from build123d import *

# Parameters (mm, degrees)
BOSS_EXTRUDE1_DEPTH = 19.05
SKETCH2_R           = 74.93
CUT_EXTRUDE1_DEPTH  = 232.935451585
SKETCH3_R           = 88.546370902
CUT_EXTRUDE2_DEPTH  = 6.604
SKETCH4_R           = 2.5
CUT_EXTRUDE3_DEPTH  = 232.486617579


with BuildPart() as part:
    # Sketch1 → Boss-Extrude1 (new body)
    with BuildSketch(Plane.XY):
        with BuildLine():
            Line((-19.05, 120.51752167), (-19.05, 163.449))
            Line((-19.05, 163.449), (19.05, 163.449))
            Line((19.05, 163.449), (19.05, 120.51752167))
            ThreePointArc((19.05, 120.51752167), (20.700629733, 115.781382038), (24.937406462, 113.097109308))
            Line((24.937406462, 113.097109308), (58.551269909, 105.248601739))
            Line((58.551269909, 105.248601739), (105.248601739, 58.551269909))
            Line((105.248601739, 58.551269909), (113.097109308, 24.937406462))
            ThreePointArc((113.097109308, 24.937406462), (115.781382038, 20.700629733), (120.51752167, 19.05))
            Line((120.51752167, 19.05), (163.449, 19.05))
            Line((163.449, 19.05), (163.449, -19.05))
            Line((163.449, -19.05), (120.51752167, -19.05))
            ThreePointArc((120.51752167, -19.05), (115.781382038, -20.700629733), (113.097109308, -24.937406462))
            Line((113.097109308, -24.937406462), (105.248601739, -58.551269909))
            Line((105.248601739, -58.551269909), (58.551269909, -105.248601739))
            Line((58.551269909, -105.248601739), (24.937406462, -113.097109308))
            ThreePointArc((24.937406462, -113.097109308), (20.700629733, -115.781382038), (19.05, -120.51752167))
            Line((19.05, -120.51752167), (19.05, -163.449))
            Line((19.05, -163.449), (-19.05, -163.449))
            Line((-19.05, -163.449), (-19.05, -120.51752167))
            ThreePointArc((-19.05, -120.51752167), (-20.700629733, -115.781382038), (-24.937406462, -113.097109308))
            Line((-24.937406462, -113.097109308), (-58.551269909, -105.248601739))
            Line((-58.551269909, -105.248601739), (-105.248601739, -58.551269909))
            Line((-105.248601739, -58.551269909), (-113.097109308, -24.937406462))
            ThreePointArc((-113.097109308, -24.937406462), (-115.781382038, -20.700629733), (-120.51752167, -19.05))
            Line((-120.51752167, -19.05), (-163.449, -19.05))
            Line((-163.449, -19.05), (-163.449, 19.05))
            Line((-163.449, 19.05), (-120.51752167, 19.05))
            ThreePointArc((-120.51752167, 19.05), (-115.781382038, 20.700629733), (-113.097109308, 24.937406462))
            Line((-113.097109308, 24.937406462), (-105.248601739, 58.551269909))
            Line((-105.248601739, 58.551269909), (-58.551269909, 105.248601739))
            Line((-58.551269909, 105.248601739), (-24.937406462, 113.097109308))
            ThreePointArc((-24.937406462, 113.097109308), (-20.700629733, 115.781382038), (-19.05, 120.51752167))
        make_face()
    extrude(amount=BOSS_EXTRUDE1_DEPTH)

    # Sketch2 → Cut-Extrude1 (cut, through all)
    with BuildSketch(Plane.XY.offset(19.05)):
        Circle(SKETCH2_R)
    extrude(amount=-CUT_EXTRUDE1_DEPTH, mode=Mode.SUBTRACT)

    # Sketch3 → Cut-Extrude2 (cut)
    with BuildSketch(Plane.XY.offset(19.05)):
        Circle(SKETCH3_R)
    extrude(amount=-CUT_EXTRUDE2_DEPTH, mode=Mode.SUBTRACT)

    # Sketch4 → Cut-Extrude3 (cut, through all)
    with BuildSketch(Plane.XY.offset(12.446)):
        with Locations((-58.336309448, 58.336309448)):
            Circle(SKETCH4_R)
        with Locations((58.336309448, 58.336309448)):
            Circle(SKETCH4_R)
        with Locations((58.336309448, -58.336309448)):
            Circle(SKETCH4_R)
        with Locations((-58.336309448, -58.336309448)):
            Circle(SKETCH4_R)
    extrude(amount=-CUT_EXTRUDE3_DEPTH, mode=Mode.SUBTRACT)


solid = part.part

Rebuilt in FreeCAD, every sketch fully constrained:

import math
import FreeCAD as App
import Part
import Sketcher
from FreeCAD import Vector
Q = App.Units.Quantity

doc = App.newDocument("Part")
body = doc.addObject("PartDesign::Body", "Body")

sketch1 = body.newObject("Sketcher::SketchObject", "Sketch")
sketch1.AttachmentSupport = (doc.getObject("XY_Plane"), [""])
sketch1.MapMode = "FlatFace"
sketch1.addGeometry([
    Part.LineSegment(Vector(-19.05, 163.449, 0), Vector(-19.05, 120.517522, 0)),
    Part.ArcOfCircle(Part.Circle(Vector(-26.67, 120.517522, 0), Vector(0, 0, 1), 7.62), math.radians(-76.857454), math.radians(0)),
    Part.LineSegment(Vector(-24.937406, 113.097109, 0), Vector(-58.55127, 105.248602, 0)),
    Part.LineSegment(Vector(-58.55127, 105.248602, 0), Vector(-105.248602, 58.55127, 0)),
    Part.LineSegment(Vector(-105.248602, 58.55127, 0), Vector(-113.097109, 24.937406, 0)),
    Part.ArcOfCircle(Part.Circle(Vector(-120.517522, 26.67, 0), Vector(0, 0, 1), 7.62), math.radians(-90), math.radians(-13.142546)),
    Part.LineSegment(Vector(-120.517522, 19.05, 0), Vector(-163.449, 19.05, 0)),
    Part.LineSegment(Vector(-163.449, 19.05, 0), Vector(-163.449, -19.05, 0)),
    Part.LineSegment(Vector(-163.449, -19.05, 0), Vector(-120.517522, -19.05, 0)),
    Part.ArcOfCircle(Part.Circle(Vector(-120.517522, -26.67, 0), Vector(0, 0, 1), 7.62), math.radians(13.142546), math.radians(90)),
    Part.LineSegment(Vector(-113.097109, -24.937406, 0), Vector(-105.248602, -58.55127, 0)),
    Part.LineSegment(Vector(-105.248602, -58.55127, 0), Vector(-58.55127, -105.248602, 0)),
    Part.LineSegment(Vector(-58.55127, -105.248602, 0), Vector(-24.937406, -113.097109, 0)),
    Part.ArcOfCircle(Part.Circle(Vector(-26.67, -120.517522, 0), Vector(0, 0, 1), 7.62), math.radians(0), math.radians(76.857454)),
    Part.LineSegment(Vector(-19.05, -120.517522, 0), Vector(-19.05, -163.449, 0)),
    Part.LineSegment(Vector(-19.05, -163.449, 0), Vector(19.05, -163.449, 0)),
    Part.LineSegment(Vector(19.05, -163.449, 0), Vector(19.05, -120.517522, 0)),
    Part.ArcOfCircle(Part.Circle(Vector(26.67, -120.517522, 0), Vector(0, 0, 1), 7.62), math.radians(103.142546), math.radians(180)),
    Part.LineSegment(Vector(24.937406, -113.097109, 0), Vector(58.55127, -105.248602, 0)),
    Part.LineSegment(Vector(58.55127, -105.248602, 0), Vector(105.248602, -58.55127, 0)),
    Part.LineSegment(Vector(105.248602, -58.55127, 0), Vector(113.097109, -24.937406, 0)),
    Part.ArcOfCircle(Part.Circle(Vector(120.517522, -26.67, 0), Vector(0, 0, 1), 7.62), math.radians(90), math.radians(166.857454)),
    Part.LineSegment(Vector(120.517522, -19.05, 0), Vector(163.449, -19.05, 0)),
    Part.LineSegment(Vector(163.449, -19.05, 0), Vector(163.449, 19.05, 0)),
    Part.LineSegment(Vector(163.449, 19.05, 0), Vector(120.517522, 19.05, 0)),
    Part.ArcOfCircle(Part.Circle(Vector(120.517522, 26.67, 0), Vector(0, 0, 1), 7.62), math.radians(-166.857454), math.radians(-90)),
    Part.LineSegment(Vector(113.097109, 24.937406, 0), Vector(105.248602, 58.55127, 0)),
    Part.LineSegment(Vector(105.248602, 58.55127, 0), Vector(58.55127, 105.248602, 0)),
    Part.LineSegment(Vector(58.55127, 105.248602, 0), Vector(24.937406, 113.097109, 0)),
    Part.ArcOfCircle(Part.Circle(Vector(26.67, 120.517522, 0), Vector(0, 0, 1), 7.62), math.radians(180), math.radians(256.857454)),
    Part.LineSegment(Vector(19.05, 120.517522, 0), Vector(19.05, 163.449, 0)),
    Part.LineSegment(Vector(19.05, 163.449, 0), Vector(-19.05, 163.449, 0)),
], False)
sketch1.addConstraint([
    Sketcher.Constraint("Tangent", 0, 2, 1, 2),
    Sketcher.Constraint("Tangent", 1, 1, 2, 1),
    Sketcher.Constraint("Coincident", 2, 2, 3, 1),
    Sketcher.Constraint("Coincident", 3, 2, 4, 1),
    Sketcher.Constraint("Tangent", 4, 2, 5, 2),
    Sketcher.Constraint("Tangent", 5, 1, 6, 1),
    Sketcher.Constraint("Coincident", 6, 2, 7, 1),
    Sketcher.Constraint("Coincident", 7, 2, 8, 1),
    Sketcher.Constraint("Tangent", 8, 2, 9, 2),
    Sketcher.Constraint("Tangent", 9, 1, 10, 1),
    Sketcher.Constraint("Coincident", 10, 2, 11, 1),
    Sketcher.Constraint("Coincident", 11, 2, 12, 1),
    Sketcher.Constraint("Tangent", 12, 2, 13, 2),
    Sketcher.Constraint("Tangent", 13, 1, 14, 1),
    Sketcher.Constraint("Coincident", 14, 2, 15, 1),
    Sketcher.Constraint("Coincident", 15, 2, 16, 1),
    Sketcher.Constraint("Tangent", 16, 2, 17, 2),
    Sketcher.Constraint("Tangent", 17, 1, 18, 1),
    Sketcher.Constraint("Coincident", 18, 2, 19, 1),
    Sketcher.Constraint("Coincident", 19, 2, 20, 1),
    Sketcher.Constraint("Tangent", 20, 2, 21, 2),
    Sketcher.Constraint("Tangent", 21, 1, 22, 1),
    Sketcher.Constraint("Coincident", 22, 2, 23, 1),
    Sketcher.Constraint("Coincident", 23, 2, 24, 1),
    Sketcher.Constraint("Tangent", 24, 2, 25, 2),
    Sketcher.Constraint("Tangent", 25, 1, 26, 1),
    Sketcher.Constraint("Coincident", 26, 2, 27, 1),
    Sketcher.Constraint("Coincident", 27, 2, 28, 1),
    Sketcher.Constraint("Tangent", 28, 2, 29, 2),
    Sketcher.Constraint("Tangent", 29, 1, 30, 1),
    Sketcher.Constraint("Coincident", 30, 2, 31, 1),
    Sketcher.Constraint("Coincident", 31, 2, 0, 1),
    Sketcher.Constraint("Vertical", 0),
    Sketcher.Constraint("Horizontal", 6),
    Sketcher.Constraint("Vertical", 7),
    Sketcher.Constraint("Horizontal", 8),
    Sketcher.Constraint("Vertical", 14),
    Sketcher.Constraint("Horizontal", 15),
    Sketcher.Constraint("Vertical", 16),
    Sketcher.Constraint("Horizontal", 22),
    Sketcher.Constraint("Vertical", 23),
    Sketcher.Constraint("Horizontal", 24),
    Sketcher.Constraint("Vertical", 30),
    Sketcher.Constraint("Horizontal", 31),
    Sketcher.Constraint("Equal", 1, 5),
    Sketcher.Constraint("Equal", 5, 9),
    Sketcher.Constraint("Equal", 9, 13),
    Sketcher.Constraint("Equal", 13, 17),
    Sketcher.Constraint("Equal", 17, 21),
    Sketcher.Constraint("Equal", 21, 25),
    Sketcher.Constraint("Equal", 25, 29),
    Sketcher.Constraint("Symmetric", 1, 3, 17, 3, -1, 1),
    Sketcher.Constraint("Symmetric", 5, 3, 21, 3, -1, 1),
    Sketcher.Constraint("Symmetric", 9, 3, 25, 3, -1, 1),
    Sketcher.Constraint("Symmetric", 13, 3, 29, 3, -1, 1),
    Sketcher.Constraint("Symmetric", 2, 2, 18, 2, -1, 1),
    Sketcher.Constraint("Symmetric", 3, 2, 19, 2, -1, 1),
    Sketcher.Constraint("Symmetric", 10, 2, 26, 2, -1, 1),
    Sketcher.Constraint("Symmetric", 11, 2, 27, 2, -1, 1),
    Sketcher.Constraint("Symmetric", 13, 3, 17, 3, -2),
    Sketcher.Constraint("Symmetric", 9, 3, 21, 3, -2),
    Sketcher.Constraint("Symmetric", 11, 2, 18, 2, -2),
    Sketcher.Constraint("Symmetric", 10, 2, 19, 2, -2),
    Sketcher.Constraint("Perpendicular", 2, 10),
    Sketcher.Constraint("Perpendicular", 3, 11),
    Sketcher.Constraint("Equal", 8, 22),
    Sketcher.Constraint("Equal", 24, 0),
    Sketcher.Constraint("Equal", 31, 7),
    Sketcher.Constraint("Equal", 0, 14),
    Sketcher.Constraint("Equal", 2, 4),
    Sketcher.Constraint("Radius", 1, Q("0.3 in")),
    Sketcher.Constraint("DistanceX", 15, 1, 15, 2, Q("1.5 in")),
    Sketcher.Constraint("Distance", 3, Q("2.6 in")),
    Sketcher.Constraint("DistanceX", 6, 2, -1, 1, Q("6.435 in")),
    Sketcher.Constraint("DistanceX", 6, 2, 6, 1, Q("42.931478 mm")),
    Sketcher.Constraint("DistanceY", -1, 1, 2, 2, Q("105.248602 mm")),
])
pad1 = body.newObject("PartDesign::Pad", "Pad")
pad1.Profile = sketch1
pad1.Length = Q("0.75 in")

sketch2 = body.newObject("Sketcher::SketchObject", "Sketch001")
sketch2.AttachmentSupport = (doc.getObject("XY_Plane"), [""])
sketch2.MapMode = "FlatFace"
sketch2.AttachmentOffset = App.Placement(Vector(0, 0, 0.75 * 25.4), App.Rotation())
sketch2.addGeometry(Part.Circle(Vector(0, 0, 0), Vector(0, 0, 1), 74.93), False)
sketch2.addConstraint([
    Sketcher.Constraint("Coincident", 0, 3, -1, 1),
    Sketcher.Constraint("Diameter", 0, Q("5.9 in")),
])
pocket1 = body.newObject("PartDesign::Pocket", "Pocket")
pocket1.Profile = sketch2
pocket1.Type = "ThroughAll"

sketch3 = body.newObject("Sketcher::SketchObject", "Sketch002")
sketch3.AttachmentSupport = (doc.getObject("XY_Plane"), [""])
sketch3.MapMode = "FlatFace"
sketch3.AttachmentOffset = App.Placement(Vector(0, 0, 0.75 * 25.4), App.Rotation())
sketch3.addGeometry(Part.Circle(Vector(0, 0, 0), Vector(0, 0, 1), 88.546371), False)
sketch3.addConstraint([
    Sketcher.Constraint("Coincident", 0, 3, -1, 1),
    Sketcher.Constraint("Diameter", 0, Q("177.092742 mm")),
])
pocket2 = body.newObject("PartDesign::Pocket", "Pocket001")
pocket2.Profile = sketch3
pocket2.Length = Q("0.26 in")

sketch4 = body.newObject("Sketcher::SketchObject", "Sketch003")
sketch4.AttachmentSupport = (doc.getObject("XY_Plane"), [""])
sketch4.MapMode = "FlatFace"
sketch4.AttachmentOffset = App.Placement(Vector(0, 0, 0.49 * 25.4), App.Rotation())
sketch4.addGeometry([
    Part.Circle(Vector(-58.336309, 58.336309, 0), Vector(0, 0, 1), 2.5),
    Part.Circle(Vector(58.336309, 58.336309, 0), Vector(0, 0, 1), 2.5),
    Part.Circle(Vector(58.336309, -58.336309, 0), Vector(0, 0, 1), 2.5),
    Part.Circle(Vector(-58.336309, -58.336309, 0), Vector(0, 0, 1), 2.5),
], False)
sketch4.addConstraint([
    Sketcher.Constraint("Equal", 0, 1),
    Sketcher.Constraint("Equal", 1, 2),
    Sketcher.Constraint("Equal", 2, 3),
    Sketcher.Constraint("Symmetric", 0, 3, 2, 3, -1, 1),
    Sketcher.Constraint("Symmetric", 1, 3, 3, 3, -1, 1),
    Sketcher.Constraint("Symmetric", 0, 3, 1, 3, -2),
    Sketcher.Constraint("Diameter", 0, Q("5 mm")),
    Sketcher.Constraint("DistanceX", 0, 3, -1, 1, Q("58.336309 mm")),
    Sketcher.Constraint("DistanceY", -1, 1, 0, 3, Q("58.336309 mm")),
])
pocket3 = body.newObject("PartDesign::Pocket", "Pocket002")
pocket3.Profile = sketch4
pocket3.Type = "ThroughAll"

doc.recompute()
